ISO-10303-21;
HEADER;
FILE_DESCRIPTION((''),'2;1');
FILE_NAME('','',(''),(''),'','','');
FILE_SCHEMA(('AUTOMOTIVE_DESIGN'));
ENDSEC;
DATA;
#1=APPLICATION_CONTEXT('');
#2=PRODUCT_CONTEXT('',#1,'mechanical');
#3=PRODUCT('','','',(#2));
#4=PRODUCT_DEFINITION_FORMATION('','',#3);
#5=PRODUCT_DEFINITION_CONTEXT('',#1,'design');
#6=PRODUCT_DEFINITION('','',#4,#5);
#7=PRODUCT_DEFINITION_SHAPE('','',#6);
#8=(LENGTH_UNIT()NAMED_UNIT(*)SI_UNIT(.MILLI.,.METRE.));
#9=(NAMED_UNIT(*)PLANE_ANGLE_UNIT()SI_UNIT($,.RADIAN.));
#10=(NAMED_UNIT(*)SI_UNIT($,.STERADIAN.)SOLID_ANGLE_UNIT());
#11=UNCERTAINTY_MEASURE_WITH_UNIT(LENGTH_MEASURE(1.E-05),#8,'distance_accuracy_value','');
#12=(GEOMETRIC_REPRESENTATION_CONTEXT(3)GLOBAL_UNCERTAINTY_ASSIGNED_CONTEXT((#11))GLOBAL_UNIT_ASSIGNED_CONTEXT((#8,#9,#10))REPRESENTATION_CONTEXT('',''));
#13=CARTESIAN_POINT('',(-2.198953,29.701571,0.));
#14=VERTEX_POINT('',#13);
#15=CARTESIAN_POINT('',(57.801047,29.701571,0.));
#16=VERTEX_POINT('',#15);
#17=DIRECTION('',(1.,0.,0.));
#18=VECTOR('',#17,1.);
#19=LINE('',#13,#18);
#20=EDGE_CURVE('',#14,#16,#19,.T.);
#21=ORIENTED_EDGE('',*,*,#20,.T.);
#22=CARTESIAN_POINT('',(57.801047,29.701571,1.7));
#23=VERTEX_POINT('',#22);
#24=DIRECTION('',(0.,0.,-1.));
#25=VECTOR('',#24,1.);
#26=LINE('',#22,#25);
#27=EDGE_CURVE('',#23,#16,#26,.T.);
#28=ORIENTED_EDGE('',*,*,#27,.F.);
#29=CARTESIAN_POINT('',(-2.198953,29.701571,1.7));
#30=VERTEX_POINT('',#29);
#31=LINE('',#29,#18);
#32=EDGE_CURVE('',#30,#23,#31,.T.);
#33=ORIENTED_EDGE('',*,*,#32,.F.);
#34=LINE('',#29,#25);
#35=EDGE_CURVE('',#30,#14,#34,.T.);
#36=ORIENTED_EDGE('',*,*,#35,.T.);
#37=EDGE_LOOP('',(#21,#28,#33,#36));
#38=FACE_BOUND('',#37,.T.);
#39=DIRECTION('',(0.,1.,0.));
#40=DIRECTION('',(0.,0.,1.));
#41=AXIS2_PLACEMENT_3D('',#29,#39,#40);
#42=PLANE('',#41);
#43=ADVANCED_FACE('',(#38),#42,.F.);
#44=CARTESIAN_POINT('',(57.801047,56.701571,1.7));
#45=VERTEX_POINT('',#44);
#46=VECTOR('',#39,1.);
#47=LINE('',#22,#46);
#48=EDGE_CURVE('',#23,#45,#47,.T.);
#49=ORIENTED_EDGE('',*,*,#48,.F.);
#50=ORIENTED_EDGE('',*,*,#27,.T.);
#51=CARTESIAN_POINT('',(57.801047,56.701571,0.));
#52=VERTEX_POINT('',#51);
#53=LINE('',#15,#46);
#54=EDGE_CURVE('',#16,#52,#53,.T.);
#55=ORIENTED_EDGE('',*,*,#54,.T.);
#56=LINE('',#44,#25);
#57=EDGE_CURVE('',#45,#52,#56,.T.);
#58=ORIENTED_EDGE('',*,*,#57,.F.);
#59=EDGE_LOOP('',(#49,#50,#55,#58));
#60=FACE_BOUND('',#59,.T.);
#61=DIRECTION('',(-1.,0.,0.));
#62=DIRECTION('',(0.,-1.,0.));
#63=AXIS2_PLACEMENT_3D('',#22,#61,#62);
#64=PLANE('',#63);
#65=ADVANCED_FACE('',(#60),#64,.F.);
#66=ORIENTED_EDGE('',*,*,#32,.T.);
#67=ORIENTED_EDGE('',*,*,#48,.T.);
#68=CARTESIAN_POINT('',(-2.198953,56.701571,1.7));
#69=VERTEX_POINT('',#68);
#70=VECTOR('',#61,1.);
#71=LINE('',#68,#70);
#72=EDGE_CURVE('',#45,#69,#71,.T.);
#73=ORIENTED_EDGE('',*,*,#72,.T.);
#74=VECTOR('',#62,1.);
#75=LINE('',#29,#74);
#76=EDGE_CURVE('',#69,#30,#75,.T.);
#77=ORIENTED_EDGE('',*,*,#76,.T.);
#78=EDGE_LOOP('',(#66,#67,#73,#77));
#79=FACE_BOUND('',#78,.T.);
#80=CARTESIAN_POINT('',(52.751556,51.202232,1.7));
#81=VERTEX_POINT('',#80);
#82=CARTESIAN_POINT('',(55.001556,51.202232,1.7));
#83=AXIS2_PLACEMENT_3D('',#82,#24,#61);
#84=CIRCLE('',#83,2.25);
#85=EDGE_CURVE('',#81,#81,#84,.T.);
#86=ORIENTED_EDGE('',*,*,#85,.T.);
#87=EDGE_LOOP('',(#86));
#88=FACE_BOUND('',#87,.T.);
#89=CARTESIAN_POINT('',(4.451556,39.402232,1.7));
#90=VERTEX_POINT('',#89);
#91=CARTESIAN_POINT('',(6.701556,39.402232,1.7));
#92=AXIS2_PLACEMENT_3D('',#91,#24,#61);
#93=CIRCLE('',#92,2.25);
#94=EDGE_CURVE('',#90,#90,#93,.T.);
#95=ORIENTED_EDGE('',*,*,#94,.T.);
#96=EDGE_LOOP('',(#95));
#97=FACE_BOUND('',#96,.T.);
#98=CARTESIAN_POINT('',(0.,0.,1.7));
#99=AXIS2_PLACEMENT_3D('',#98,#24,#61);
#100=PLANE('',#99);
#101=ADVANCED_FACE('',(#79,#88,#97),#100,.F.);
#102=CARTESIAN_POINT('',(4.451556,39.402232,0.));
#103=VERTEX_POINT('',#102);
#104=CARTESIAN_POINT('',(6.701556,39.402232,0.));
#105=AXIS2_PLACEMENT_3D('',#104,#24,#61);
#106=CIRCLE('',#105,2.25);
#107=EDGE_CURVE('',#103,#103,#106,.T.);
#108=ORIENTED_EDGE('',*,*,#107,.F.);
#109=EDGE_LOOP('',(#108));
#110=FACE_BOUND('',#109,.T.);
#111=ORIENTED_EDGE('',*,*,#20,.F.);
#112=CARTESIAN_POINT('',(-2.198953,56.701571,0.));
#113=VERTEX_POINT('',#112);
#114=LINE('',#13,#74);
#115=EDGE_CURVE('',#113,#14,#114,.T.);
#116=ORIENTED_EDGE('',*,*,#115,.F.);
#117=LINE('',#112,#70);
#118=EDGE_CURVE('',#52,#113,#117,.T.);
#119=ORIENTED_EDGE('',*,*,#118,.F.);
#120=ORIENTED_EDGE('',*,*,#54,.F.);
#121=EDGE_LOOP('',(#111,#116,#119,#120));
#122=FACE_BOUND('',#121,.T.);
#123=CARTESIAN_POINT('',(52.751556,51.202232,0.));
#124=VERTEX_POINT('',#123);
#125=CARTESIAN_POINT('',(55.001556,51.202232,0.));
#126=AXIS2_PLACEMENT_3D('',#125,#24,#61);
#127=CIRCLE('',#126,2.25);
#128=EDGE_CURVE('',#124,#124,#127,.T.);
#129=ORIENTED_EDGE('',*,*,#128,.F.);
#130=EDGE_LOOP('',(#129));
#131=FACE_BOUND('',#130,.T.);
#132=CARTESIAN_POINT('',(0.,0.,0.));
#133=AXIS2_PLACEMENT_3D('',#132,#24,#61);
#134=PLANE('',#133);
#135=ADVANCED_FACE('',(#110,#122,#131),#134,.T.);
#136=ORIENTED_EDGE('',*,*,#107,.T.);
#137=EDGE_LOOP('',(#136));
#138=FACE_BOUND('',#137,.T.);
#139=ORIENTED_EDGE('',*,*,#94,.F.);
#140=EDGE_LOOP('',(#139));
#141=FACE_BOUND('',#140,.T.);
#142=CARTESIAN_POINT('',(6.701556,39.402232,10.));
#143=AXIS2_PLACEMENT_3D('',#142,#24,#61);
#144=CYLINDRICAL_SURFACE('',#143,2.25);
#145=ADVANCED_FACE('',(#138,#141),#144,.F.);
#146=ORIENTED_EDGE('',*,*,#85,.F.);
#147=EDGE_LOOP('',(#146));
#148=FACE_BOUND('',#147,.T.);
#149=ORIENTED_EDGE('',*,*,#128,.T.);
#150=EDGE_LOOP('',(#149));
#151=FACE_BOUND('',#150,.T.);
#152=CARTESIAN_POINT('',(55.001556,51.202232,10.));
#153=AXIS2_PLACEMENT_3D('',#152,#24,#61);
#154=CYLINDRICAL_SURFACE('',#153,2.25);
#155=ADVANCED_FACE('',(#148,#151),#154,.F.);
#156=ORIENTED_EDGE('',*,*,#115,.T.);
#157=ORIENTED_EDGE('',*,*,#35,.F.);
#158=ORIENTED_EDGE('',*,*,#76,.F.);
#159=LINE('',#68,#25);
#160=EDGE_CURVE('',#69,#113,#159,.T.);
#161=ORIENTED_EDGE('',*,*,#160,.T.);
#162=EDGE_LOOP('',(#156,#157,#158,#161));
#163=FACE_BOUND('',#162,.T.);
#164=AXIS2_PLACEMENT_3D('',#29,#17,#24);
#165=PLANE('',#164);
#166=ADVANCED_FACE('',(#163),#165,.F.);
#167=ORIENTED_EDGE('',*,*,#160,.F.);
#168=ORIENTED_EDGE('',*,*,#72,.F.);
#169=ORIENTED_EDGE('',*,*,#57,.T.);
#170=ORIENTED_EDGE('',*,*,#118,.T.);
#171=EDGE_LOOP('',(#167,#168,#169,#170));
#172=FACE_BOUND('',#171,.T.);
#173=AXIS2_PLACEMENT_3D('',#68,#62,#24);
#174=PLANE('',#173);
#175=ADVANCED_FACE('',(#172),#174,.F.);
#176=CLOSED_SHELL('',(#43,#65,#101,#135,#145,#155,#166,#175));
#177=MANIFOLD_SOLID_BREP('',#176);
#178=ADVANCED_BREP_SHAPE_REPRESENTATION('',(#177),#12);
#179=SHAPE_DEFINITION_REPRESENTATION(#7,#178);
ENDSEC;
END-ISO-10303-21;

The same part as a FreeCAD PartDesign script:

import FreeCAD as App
import Part
import Sketcher
from FreeCAD import Vector
Q = App.Units.Quantity

doc = App.newDocument("Part")
params = doc.addObject("Spreadsheet::Sheet", "Params")
for row, (alias, value) in enumerate([
    ("sketch1_width", "60 mm"),
    ("sketch1_height", "27 mm"),
    ("pad1_length", "1.7 mm"),
    ("sketch2_diameter", "4.5 mm"),
    ("pocket1_length", "10 mm"),
], start=1):
    params.set(f"A{row}", alias)
    params.set(f"B{row}", "=" + value)
    params.setAlias(f"B{row}", alias)

body = doc.addObject("PartDesign::Body", "Body")

sketch1 = doc.addObject("Sketcher::SketchObject", "Sketch")
body.addObject(sketch1)
sketch1.AttachmentSupport = (doc.XY_Plane, [""])
sketch1.MapMode = "FlatFace"
sketch1.addGeometry([
    Part.LineSegment(Vector(-2, 57, 0), Vector(-2, 30, 0)),
    Part.LineSegment(Vector(-2, 30, 0), Vector(58, 30, 0)),
    Part.LineSegment(Vector(58, 30, 0), Vector(58, 57, 0)),
    Part.LineSegment(Vector(58, 57, 0), Vector(-2, 57, 0)),
], False)
sketch1.addConstraint([
    Sketcher.Constraint("Coincident", 0, 2, 1, 1),
    Sketcher.Constraint("Coincident", 1, 2, 2, 1),
    Sketcher.Constraint("Coincident", 2, 2, 3, 1),
    Sketcher.Constraint("Coincident", 3, 2, 0, 1),
    Sketcher.Constraint("Vertical", 0),
    Sketcher.Constraint("Horizontal", 1),
    Sketcher.Constraint("Vertical", 2),
    Sketcher.Constraint("Horizontal", 3),
    Sketcher.Constraint("DistanceX", 1, 1, 1, 2, Q("60 mm")),
    Sketcher.Constraint("DistanceY", 0, 2, 0, 1, Q("27 mm")),
    Sketcher.Constraint("DistanceY", -1, 1, 0, 2, Q("29.701571 mm")),
    Sketcher.Constraint("DistanceX", 0, 2, -1, 1, Q("2.198953 mm")),
])
sketch1.setExpression("Constraints[8]", "Params.sketch1_width")
sketch1.setExpression("Constraints[9]", "Params.sketch1_height")
pad1 = doc.addObject("PartDesign::Pad", "Pad")
body.addObject(pad1)
pad1.Profile = sketch1
pad1.setExpression("Length", "Params.pad1_length")

sketch2 = doc.addObject("Sketcher::SketchObject", "Sketch001")
body.addObject(sketch2)
sketch2.AttachmentSupport = (doc.XY_Plane, [""])
sketch2.MapMode = "FlatFace"
sketch2.addGeometry([
    Part.Circle(Vector(55, 51.2, 0), Vector(0, 0, 1), 2.2),
    Part.Circle(Vector(6.7, 39.4, 0), Vector(0, 0, 1), 2.2),
], False)
sketch2.addConstraint([
    Sketcher.Constraint("Equal", 0, 1),
    Sketcher.Constraint("Diameter", 0, Q("4.5 mm")),
    Sketcher.Constraint("DistanceX", 1, 3, 0, 3, Q("48.3 mm")),
    Sketcher.Constraint("DistanceY", 1, 3, 0, 3, Q("11.8 mm")),
    Sketcher.Constraint("DistanceY", -1, 1, 0, 3, Q("51.202232 mm")),
    Sketcher.Constraint("DistanceX", -1, 1, 0, 3, Q("55.001556 mm")),
])
sketch2.setExpression("Constraints[1]", "Params.sketch2_diameter")
pocket1 = doc.addObject("PartDesign::Pocket", "Pocket")
body.addObject(pocket1)
pocket1.Profile = sketch2
pocket1.setExpression("Length", "Params.pocket1_length")
pocket1.Reversed = True

doc.recompute()
